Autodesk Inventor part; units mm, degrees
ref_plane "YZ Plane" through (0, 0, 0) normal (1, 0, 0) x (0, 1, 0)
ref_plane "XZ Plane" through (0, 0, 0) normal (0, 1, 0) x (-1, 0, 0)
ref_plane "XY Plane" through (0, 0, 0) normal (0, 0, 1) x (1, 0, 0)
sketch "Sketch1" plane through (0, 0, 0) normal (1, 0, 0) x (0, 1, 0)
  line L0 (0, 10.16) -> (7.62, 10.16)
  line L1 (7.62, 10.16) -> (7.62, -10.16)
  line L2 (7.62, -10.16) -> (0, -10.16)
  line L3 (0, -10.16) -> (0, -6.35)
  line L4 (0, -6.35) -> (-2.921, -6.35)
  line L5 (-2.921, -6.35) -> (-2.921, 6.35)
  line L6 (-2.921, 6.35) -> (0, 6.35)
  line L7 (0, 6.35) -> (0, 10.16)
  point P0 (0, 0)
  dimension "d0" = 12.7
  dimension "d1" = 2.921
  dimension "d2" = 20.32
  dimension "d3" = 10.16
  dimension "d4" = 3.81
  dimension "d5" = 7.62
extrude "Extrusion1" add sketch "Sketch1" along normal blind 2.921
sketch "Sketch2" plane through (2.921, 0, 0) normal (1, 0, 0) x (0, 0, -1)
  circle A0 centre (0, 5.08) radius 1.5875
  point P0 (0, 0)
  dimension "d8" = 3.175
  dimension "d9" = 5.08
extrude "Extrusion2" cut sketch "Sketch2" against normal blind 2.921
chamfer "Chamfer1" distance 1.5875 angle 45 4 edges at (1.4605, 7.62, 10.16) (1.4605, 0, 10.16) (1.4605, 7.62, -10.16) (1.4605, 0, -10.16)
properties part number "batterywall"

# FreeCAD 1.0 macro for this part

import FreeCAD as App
import Part
import Sketcher

V = App.Vector
Q = App.Units.Quantity


def edges_at(feature, points):
    """Names of the edges that pass closest to the given points."""
    edges = feature.Shape.Edges
    near = lambda p: min(range(len(edges)), key=lambda i: edges[i].distToShape(Part.Vertex(*p))[0])
    return sorted({f"Edge{near(p) + 1}" for p in points})

doc = App.newDocument("Part")
body = doc.addObject("PartDesign::Body", "Body")

sketch1 = body.newObject("Sketcher::SketchObject", "Sketch")
sketch1.AttachmentSupport = (doc.getObject("YZ_Plane"), [""])
sketch1.MapMode = "FlatFace"
sketch1.addGeometry([
    Part.LineSegment(V(7.62, 10.16, 0), V(0, 10.16, 0)),
    Part.LineSegment(V(0, 10.16, 0), V(0, 6.35, 0)),
    Part.LineSegment(V(0, 6.35, 0), V(-2.921, 6.35, 0)),
    Part.LineSegment(V(-2.921, 6.35, 0), V(-2.921, -6.35, 0)),
    Part.LineSegment(V(-2.921, -6.35, 0), V(0, -6.35, 0)),
    Part.LineSegment(V(0, -6.35, 0), V(0, -10.16, 0)),
    Part.LineSegment(V(0, -10.16, 0), V(7.62, -10.16, 0)),
    Part.LineSegment(V(7.62, -10.16, 0), V(7.62, 10.16, 0)),
], False)
sketch1.addConstraint([
    Sketcher.Constraint("Coincident", 0, 2, 1, 1),
    Sketcher.Constraint("Coincident", 1, 2, 2, 1),
    Sketcher.Constraint("Coincident", 2, 2, 3, 1),
    Sketcher.Constraint("Coincident", 3, 2, 4, 1),
    Sketcher.Constraint("Coincident", 4, 2, 5, 1),
    Sketcher.Constraint("Coincident", 5, 2, 6, 1),
    Sketcher.Constraint("Coincident", 6, 2, 7, 1),
    Sketcher.Constraint("Coincident", 7, 2, 0, 1),
    Sketcher.Constraint("Horizontal", 0),
    Sketcher.Constraint("Vertical", 1),
    Sketcher.Constraint("Horizontal", 2),
    Sketcher.Constraint("Vertical", 3),
    Sketcher.Constraint("Horizontal", 4),
    Sketcher.Constraint("Vertical", 5),
    Sketcher.Constraint("Horizontal", 6),
    Sketcher.Constraint("Vertical", 7),
    Sketcher.Constraint("Symmetric", 1, 2, 4, 2, -1, 1),
    Sketcher.Constraint("Symmetric", 0, 2, 5, 2, -1),
    Sketcher.Constraint("DistanceX", 0, 2, 0, 1, Q("0.3 in")),
    Sketcher.Constraint("DistanceY", 3, 2, 3, 1, Q("0.5 in")),
    Sketcher.Constraint("DistanceY", 7, 1, 7, 2, Q("0.8 in")),
    Sketcher.Constraint("DistanceX", 2, 2, 2, 1, Q("0.115 in")),
])
pad1 = body.newObject("PartDesign::Pad", "Pad")
pad1.Profile = sketch1
pad1.Length = Q("0.115 in")

sketch2 = body.newObject("Sketcher::SketchObject", "Sketch001")
sketch2.AttachmentSupport = (doc.getObject("YZ_Plane"), [""])
sketch2.MapMode = "FlatFace"
sketch2.AttachmentOffset = App.Placement(V(0, 0, 0.115 * 25.4), App.Rotation())
sketch2.addGeometry(Part.Circle(V(5.08, 0, 0), V(0, 0, 1), 1.5875), False)
sketch2.addConstraint([
    Sketcher.Constraint("PointOnObject", 0, 3, -1),
    Sketcher.Constraint("Diameter", 0, Q("0.125 in")),
    Sketcher.Constraint("DistanceX", -1, 1, 0, 3, Q("0.2 in")),
])
pocket1 = body.newObject("PartDesign::Pocket", "Pocket")
pocket1.Profile = sketch2
pocket1.Length = Q("0.115 in")
doc.recompute()

chamfer = body.newObject("PartDesign::Chamfer", "Chamfer")
chamfer.Base = (pocket1, edges_at(pocket1, [
    (1.46, 7.62, 10.16),
    (1.46, 0, 10.16),
    (1.46, 7.62, -10.16),
    (1.46, 0, -10.16),
]))
chamfer.Size = Q("0.0625 in")

doc.recompute()
